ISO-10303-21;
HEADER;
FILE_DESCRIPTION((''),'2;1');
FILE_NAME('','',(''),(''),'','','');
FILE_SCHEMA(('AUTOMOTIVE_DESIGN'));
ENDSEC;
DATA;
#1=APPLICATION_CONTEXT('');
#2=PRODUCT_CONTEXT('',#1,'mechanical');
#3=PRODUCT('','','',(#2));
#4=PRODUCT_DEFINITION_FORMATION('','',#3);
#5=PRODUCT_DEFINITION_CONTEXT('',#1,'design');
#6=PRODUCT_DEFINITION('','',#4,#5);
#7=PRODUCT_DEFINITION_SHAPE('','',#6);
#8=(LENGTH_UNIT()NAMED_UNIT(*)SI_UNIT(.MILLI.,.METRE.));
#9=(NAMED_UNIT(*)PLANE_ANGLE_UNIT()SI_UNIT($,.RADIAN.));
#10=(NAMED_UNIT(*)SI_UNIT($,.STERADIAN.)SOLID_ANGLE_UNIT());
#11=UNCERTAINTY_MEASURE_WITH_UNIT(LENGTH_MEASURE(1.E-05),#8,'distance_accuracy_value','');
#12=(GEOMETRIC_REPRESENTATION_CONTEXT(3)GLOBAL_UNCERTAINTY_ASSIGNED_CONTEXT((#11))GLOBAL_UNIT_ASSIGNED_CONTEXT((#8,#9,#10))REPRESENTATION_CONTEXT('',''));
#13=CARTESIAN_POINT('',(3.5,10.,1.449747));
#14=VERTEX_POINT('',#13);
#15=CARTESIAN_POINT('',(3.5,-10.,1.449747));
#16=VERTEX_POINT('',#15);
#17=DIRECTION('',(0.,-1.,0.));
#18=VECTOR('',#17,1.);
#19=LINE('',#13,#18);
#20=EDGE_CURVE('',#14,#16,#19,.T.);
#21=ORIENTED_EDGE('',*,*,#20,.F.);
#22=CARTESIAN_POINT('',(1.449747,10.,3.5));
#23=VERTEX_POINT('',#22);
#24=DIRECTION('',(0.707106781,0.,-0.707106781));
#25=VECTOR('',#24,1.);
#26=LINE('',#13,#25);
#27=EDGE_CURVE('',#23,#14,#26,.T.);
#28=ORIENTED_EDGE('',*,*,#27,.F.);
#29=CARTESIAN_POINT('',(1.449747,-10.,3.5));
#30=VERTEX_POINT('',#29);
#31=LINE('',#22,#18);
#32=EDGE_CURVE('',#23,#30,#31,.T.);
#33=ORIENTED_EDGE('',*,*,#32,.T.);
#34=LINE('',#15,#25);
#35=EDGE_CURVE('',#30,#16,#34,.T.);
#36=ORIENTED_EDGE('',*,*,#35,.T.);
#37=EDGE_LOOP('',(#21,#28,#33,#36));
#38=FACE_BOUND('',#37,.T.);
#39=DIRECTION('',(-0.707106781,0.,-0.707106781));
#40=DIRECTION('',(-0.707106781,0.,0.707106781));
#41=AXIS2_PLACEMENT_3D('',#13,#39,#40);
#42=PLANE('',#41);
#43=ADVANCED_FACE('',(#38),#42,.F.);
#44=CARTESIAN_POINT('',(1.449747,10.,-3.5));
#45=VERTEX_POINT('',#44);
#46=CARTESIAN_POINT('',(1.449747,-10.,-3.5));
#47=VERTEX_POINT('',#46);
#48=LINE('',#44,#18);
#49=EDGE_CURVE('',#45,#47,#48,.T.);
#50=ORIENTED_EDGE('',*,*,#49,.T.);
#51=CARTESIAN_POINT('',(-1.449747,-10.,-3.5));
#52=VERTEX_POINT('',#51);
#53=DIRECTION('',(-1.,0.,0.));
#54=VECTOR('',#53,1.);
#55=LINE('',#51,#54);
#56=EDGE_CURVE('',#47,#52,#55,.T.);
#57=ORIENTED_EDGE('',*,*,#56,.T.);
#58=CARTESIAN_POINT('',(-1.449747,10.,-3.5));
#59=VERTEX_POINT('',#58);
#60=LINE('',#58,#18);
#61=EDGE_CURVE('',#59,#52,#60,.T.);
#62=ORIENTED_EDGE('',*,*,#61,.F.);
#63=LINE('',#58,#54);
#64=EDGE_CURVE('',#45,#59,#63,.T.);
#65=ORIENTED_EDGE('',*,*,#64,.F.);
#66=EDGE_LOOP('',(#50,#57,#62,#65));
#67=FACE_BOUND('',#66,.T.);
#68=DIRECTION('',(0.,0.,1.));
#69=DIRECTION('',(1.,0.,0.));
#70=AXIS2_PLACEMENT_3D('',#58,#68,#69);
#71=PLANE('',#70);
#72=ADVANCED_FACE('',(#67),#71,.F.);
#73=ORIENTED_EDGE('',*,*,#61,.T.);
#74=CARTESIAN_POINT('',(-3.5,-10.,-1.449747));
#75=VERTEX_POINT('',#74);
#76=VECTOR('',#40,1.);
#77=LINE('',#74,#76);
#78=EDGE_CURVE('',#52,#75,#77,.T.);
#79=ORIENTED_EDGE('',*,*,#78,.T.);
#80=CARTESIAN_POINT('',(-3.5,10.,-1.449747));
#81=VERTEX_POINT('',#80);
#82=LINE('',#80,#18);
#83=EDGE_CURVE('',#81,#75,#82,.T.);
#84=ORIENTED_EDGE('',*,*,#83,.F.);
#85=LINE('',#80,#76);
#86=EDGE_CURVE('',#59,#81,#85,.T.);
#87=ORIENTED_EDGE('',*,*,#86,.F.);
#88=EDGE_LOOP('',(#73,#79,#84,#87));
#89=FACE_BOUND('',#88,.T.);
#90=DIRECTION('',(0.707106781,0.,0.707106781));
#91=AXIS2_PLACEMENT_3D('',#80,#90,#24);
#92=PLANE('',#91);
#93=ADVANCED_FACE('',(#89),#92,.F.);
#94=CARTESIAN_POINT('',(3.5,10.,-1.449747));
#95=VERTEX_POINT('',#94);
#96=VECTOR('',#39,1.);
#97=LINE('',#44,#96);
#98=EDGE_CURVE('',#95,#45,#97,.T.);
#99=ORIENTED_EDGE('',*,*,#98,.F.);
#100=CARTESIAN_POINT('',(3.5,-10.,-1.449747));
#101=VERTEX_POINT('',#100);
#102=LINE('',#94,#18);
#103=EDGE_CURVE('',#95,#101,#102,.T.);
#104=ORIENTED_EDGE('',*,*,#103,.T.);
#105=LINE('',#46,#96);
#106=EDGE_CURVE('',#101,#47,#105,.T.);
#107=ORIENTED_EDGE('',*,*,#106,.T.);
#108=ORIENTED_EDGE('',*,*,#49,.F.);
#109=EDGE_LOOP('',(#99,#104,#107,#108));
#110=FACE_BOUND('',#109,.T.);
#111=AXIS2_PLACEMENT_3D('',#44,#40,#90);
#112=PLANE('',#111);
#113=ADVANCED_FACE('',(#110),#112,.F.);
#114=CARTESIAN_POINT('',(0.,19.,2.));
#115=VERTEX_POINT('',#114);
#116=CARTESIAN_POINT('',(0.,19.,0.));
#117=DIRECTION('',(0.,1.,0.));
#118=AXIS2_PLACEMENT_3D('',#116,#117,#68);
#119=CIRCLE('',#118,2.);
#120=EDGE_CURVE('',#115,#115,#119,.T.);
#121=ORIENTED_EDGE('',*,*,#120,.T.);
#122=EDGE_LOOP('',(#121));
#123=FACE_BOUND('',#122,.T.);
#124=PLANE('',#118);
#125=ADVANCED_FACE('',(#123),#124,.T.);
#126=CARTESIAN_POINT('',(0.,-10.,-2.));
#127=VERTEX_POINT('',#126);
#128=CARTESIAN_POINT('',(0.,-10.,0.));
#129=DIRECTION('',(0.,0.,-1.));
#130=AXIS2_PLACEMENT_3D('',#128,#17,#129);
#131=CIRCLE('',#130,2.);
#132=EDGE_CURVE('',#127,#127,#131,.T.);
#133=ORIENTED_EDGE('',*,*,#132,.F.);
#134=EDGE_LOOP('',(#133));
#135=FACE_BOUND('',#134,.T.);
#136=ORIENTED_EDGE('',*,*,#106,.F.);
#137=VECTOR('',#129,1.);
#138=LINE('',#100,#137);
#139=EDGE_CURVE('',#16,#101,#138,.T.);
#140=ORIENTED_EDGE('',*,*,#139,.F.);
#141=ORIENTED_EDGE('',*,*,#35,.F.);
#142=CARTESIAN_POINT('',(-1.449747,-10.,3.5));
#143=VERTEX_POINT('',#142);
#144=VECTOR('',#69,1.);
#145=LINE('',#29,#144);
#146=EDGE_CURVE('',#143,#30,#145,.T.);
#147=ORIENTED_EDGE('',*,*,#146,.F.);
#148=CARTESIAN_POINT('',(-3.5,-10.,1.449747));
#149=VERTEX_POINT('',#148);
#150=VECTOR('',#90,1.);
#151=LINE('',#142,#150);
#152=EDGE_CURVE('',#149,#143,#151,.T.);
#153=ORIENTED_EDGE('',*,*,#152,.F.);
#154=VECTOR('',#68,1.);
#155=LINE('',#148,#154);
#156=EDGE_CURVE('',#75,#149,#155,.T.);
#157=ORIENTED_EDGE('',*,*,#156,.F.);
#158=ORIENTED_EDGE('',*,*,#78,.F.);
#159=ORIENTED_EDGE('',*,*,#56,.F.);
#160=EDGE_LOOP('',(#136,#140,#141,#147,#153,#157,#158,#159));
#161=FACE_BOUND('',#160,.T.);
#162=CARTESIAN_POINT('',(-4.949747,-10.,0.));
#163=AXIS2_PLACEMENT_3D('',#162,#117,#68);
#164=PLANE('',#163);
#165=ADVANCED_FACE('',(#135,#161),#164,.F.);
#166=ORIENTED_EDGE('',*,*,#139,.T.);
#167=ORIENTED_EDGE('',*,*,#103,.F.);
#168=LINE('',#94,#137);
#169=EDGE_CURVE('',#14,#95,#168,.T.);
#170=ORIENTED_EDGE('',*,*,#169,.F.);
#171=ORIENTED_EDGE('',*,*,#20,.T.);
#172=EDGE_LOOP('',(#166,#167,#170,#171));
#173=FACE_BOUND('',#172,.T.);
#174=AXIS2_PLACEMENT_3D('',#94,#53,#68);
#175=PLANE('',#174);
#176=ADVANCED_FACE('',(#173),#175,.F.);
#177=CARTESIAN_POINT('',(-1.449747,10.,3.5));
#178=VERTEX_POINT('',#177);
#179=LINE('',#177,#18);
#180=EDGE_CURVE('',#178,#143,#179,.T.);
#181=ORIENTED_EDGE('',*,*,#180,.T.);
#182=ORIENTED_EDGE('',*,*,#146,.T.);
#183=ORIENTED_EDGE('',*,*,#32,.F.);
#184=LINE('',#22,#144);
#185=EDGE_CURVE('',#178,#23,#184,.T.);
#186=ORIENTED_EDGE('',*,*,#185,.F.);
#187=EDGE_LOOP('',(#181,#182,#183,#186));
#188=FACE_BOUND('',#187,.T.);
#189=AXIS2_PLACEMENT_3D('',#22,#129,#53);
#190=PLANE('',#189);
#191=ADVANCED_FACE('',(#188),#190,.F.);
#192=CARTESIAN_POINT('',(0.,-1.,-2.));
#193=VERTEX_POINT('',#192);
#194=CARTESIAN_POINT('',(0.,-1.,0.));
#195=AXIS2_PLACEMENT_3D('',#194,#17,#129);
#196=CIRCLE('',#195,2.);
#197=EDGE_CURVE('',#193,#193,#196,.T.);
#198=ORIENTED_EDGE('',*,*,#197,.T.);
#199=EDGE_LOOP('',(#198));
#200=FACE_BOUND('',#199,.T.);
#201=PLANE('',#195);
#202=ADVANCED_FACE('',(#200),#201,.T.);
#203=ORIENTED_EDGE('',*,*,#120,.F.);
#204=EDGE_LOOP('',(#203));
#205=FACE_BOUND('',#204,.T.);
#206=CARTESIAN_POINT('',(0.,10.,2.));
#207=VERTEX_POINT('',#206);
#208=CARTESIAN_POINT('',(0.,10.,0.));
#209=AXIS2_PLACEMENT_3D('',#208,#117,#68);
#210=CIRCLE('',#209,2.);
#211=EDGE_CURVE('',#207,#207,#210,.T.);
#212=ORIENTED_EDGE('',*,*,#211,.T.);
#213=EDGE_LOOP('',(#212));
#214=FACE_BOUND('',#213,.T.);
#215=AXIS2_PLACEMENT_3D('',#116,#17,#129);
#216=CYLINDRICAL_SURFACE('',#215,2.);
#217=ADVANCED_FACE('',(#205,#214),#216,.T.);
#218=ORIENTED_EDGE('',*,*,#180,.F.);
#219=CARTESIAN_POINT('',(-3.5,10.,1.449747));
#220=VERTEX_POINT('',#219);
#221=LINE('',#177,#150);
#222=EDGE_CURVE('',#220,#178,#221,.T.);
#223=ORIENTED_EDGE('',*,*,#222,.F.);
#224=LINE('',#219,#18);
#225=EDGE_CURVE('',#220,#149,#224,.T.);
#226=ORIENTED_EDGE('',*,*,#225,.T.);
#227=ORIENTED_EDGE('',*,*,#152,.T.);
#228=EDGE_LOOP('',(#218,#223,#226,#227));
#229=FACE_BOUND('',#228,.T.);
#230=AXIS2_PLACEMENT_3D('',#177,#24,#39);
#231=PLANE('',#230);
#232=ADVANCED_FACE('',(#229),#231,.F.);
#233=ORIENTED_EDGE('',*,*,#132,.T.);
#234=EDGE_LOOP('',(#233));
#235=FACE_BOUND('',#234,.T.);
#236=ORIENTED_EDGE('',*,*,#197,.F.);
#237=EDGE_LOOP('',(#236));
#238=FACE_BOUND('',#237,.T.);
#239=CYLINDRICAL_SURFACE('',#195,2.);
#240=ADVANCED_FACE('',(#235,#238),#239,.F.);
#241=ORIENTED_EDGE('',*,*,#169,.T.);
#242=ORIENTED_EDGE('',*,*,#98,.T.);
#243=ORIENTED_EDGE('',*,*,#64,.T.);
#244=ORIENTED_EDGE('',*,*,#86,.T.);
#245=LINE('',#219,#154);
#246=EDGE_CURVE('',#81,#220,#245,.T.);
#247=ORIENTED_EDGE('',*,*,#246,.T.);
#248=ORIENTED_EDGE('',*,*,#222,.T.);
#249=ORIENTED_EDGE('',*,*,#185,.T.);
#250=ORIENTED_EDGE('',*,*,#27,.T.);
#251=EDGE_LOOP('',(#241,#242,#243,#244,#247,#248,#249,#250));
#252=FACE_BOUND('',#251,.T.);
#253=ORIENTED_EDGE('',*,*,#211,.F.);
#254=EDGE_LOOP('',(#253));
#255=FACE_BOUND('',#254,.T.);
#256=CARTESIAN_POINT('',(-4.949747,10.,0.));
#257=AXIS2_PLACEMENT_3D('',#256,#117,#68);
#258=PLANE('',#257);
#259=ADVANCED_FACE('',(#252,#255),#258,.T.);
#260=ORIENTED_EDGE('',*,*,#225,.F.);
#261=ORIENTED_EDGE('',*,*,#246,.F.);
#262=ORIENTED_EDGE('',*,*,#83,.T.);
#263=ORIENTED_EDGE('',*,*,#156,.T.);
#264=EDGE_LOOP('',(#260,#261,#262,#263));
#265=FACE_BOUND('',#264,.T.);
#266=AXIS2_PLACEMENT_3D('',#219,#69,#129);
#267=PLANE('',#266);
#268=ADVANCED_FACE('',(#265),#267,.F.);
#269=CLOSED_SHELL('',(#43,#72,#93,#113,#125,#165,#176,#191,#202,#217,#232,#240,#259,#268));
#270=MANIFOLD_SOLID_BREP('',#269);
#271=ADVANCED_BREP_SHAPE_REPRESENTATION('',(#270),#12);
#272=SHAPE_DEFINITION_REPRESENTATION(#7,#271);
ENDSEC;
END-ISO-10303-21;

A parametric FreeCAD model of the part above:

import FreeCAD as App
import Part
import Sketcher
from FreeCAD import Vector
Q = App.Units.Quantity


def add_polygon(sketch, points):
    """Adds a closed chain of lines whose ends are joined by coincident constraints."""
    first, n = sketch.GeometryCount, len(points)
    for a, b in zip(points, points[1:] + points[:1]):
        sketch.addGeometry(Part.LineSegment(App.Vector(*a, 0), App.Vector(*b, 0)), False)
    for i in range(n):
        sketch.addConstraint(Sketcher.Constraint("Coincident", first + i, 2, first + (i + 1) % n, 1))

doc = App.newDocument("Part")
body = doc.addObject("PartDesign::Body", "Body")

# Sketch on XZ plane
sketch1 = body.newObject("Sketcher::SketchObject", "Sketch")
sketch1.AttachmentSupport = (doc.getObject("XZ_Plane"), [""])
sketch1.MapMode = "FlatFace"
add_polygon(sketch1, [(1.4, -3.5), (-1.4, -3.5), (-3.5, -1.4), (-3.5, 1.4), (-1.4, 3.5), (1.4, 3.5), (3.5, 1.4), (3.5, -1.4)])  # lines 0-7
sketch1.addConstraint(Sketcher.Constraint("Horizontal", 0))
sketch1.addConstraint(Sketcher.Constraint("Vertical", 2))
sketch1.addConstraint(Sketcher.Constraint("Horizontal", 4))
sketch1.addConstraint(Sketcher.Constraint("Vertical", 6))
sketch1.addConstraint(Sketcher.Constraint("Symmetric", 0, 2, 4, 2, -1, 1))
sketch1.addConstraint(Sketcher.Constraint("Symmetric", 1, 2, 5, 2, -1, 1))
sketch1.addConstraint(Sketcher.Constraint("Perpendicular", 1, 3))
sketch1.addConstraint(Sketcher.Constraint("Perpendicular", 5, 7))
sketch1.addConstraint(Sketcher.Constraint("Horizontal", 2, 2, 5, 2))
sketch1.addConstraint(Sketcher.Constraint("Horizontal", 1, 2, 6, 2))
sketch1.addConstraint(Sketcher.Constraint("Vertical", 0, 2, 3, 2))
sketch1.addConstraint(Sketcher.Constraint("Equal", 4, 2))
sketch1.addConstraint(Sketcher.Constraint("DistanceY", 0, 2, 3, 2, Q("7 mm")))
sketch1.addConstraint(Sketcher.Constraint("DistanceX", 0, 2, 0, 1, Q("2.899495 mm")))
pad1 = body.newObject("PartDesign::Pad", "Pad")
pad1.Profile = sketch1
pad1.Length = 20
pad1.Midplane = True

# Sketch on XZ plane
sketch2 = body.newObject("Sketcher::SketchObject", "Sketch001")
sketch2.AttachmentSupport = (doc.getObject("XZ_Plane"), [""])
sketch2.MapMode = "FlatFace"
sketch2.AttachmentOffset = App.Placement(Vector(0, 0, -10), App.Rotation())
sketch2.addGeometry(Part.Circle(Vector(0, 0, 0), Vector(0, 0, 1), 2), False)
sketch2.addConstraint(Sketcher.Constraint("Coincident", 0, 3, -1, 1))
sketch2.addConstraint(Sketcher.Constraint("Diameter", 0, Q("4 mm")))
pad2 = body.newObject("PartDesign::Pad", "Pad001")
pad2.Profile = sketch2
pad2.Length = 9
pad2.Reversed = True

# Sketch on XZ plane
sketch3 = body.newObject("Sketcher::SketchObject", "Sketch002")
sketch3.AttachmentSupport = (doc.getObject("XZ_Plane"), [""])
sketch3.MapMode = "FlatFace"
sketch3.AttachmentOffset = App.Placement(Vector(0, 0, 10), App.Rotation())
sketch3.addGeometry(Part.Circle(Vector(0, 0, 0), Vector(0, 0, 1), 2), False)
sketch3.addConstraint(Sketcher.Constraint("Coincident", 0, 3, -1, 1))
sketch3.addConstraint(Sketcher.Constraint("Diameter", 0, Q("4 mm")))
pocket1 = body.newObject("PartDesign::Pocket", "Pocket")
pocket1.Profile = sketch3
pocket1.Length = 9

doc.recompute()
